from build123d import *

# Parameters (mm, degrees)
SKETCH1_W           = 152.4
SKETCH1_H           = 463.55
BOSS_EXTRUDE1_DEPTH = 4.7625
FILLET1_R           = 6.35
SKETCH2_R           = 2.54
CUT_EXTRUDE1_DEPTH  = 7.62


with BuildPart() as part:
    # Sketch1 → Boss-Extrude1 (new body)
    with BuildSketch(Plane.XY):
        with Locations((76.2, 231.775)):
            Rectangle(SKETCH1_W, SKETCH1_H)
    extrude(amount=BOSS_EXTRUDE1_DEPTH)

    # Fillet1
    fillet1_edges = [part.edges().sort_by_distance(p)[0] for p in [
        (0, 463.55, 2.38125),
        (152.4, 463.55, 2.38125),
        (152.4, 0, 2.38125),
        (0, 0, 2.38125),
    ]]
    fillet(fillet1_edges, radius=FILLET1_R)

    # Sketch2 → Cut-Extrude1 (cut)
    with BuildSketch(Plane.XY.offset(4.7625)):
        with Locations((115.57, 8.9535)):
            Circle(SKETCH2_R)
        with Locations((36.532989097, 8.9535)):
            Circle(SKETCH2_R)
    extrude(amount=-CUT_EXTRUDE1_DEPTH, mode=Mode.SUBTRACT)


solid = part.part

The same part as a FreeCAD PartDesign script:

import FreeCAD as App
import Part
import Sketcher
Q = App.Units.Quantity


def edges_at(feature, points):
    """Names of the edges that pass closest to the given points."""
    edges = feature.Shape.Edges
    near = lambda p: min(range(len(edges)), key=lambda i: edges[i].distToShape(Part.Vertex(*p))[0])
    return sorted({f"Edge{near(p) + 1}" for p in points})


def add_polygon(sketch, points):
    """Adds a closed chain of lines whose ends are joined by coincident constraints."""
    first, n = sketch.GeometryCount, len(points)
    for a, b in zip(points, points[1:] + points[:1]):
        sketch.addGeometry(Part.LineSegment(App.Vector(*a, 0), App.Vector(*b, 0)), False)
    for i in range(n):
        sketch.addConstraint(Sketcher.Constraint("Coincident", first + i, 2, first + (i + 1) % n, 1))

doc = App.newDocument("Part")
body = doc.addObject("PartDesign::Body", "Body")

# Sketch on XY plane
sketch1 = body.newObject("Sketcher::SketchObject", "Sketch")
sketch1.AttachmentSupport = (doc.getObject("XY_Plane"), [""])
sketch1.MapMode = "FlatFace"
add_polygon(sketch1, [(0, 464), (0, 0), (152, 0), (152, 464)])  # lines 0-3
sketch1.addConstraint(Sketcher.Constraint("Vertical", 0))
sketch1.addConstraint(Sketcher.Constraint("Horizontal", 1))
sketch1.addConstraint(Sketcher.Constraint("Vertical", 2))
sketch1.addConstraint(Sketcher.Constraint("Horizontal", 3))
sketch1.addConstraint(Sketcher.Constraint("Coincident", 0, 2, -1, 1))
sketch1.addConstraint(Sketcher.Constraint("DistanceX", 1, 1, 1, 2, Q("6 in")))
sketch1.addConstraint(Sketcher.Constraint("DistanceY", 0, 2, 0, 1, Q("18.25 in")))
pad1 = body.newObject("PartDesign::Pad", "Pad")
pad1.Profile = sketch1
pad1.Length = Q("0.1875 in")
doc.recompute()

fillet = body.newObject("PartDesign::Fillet", "Fillet")
fillet.Base = (pad1, edges_at(pad1, [
    (0, 463.55, 2.381),
    (152.4, 463.55, 2.381),
    (152.4, 0, 2.381),
    (0, 0, 2.381),
]))
fillet.Radius = Q("0.25 in")

# Sketch on XY plane
sketch2 = body.newObject("Sketcher::SketchObject", "Sketch001")
sketch2.AttachmentSupport = (doc.getObject("XY_Plane"), [""])
sketch2.MapMode = "FlatFace"
sketch2.AttachmentOffset = App.Placement(App.Vector(0, 0, 0.1875 * 25.4), App.Rotation())
sketch2.addGeometry(Part.Circle(App.Vector(115.6, 9, 0), App.Vector(0, 0, 1), 2.5), False)
sketch2.addGeometry(Part.Circle(App.Vector(36.5, 9, 0), App.Vector(0, 0, 1), 2.5), False)
sketch2.addConstraint(Sketcher.Constraint("Equal", 0, 1))
sketch2.addConstraint(Sketcher.Constraint("Horizontal", 0, 3, 1, 3))
sketch2.addConstraint(Sketcher.Constraint("Diameter", 0, Q("0.2 in")))
sketch2.addConstraint(Sketcher.Constraint("DistanceX", -1, 1, 0, 3, Q("4.55 in")))
sketch2.addConstraint(Sketcher.Constraint("DistanceY", -1, 1, 0, 3, Q("0.3525 in")))
sketch2.addConstraint(Sketcher.Constraint("DistanceX", -1, 1, 1, 3, 36.532989))
pocket1 = body.newObject("PartDesign::Pocket", "Pocket")
pocket1.Profile = sketch2
pocket1.Length = Q("0.3 in")

doc.recompute()
